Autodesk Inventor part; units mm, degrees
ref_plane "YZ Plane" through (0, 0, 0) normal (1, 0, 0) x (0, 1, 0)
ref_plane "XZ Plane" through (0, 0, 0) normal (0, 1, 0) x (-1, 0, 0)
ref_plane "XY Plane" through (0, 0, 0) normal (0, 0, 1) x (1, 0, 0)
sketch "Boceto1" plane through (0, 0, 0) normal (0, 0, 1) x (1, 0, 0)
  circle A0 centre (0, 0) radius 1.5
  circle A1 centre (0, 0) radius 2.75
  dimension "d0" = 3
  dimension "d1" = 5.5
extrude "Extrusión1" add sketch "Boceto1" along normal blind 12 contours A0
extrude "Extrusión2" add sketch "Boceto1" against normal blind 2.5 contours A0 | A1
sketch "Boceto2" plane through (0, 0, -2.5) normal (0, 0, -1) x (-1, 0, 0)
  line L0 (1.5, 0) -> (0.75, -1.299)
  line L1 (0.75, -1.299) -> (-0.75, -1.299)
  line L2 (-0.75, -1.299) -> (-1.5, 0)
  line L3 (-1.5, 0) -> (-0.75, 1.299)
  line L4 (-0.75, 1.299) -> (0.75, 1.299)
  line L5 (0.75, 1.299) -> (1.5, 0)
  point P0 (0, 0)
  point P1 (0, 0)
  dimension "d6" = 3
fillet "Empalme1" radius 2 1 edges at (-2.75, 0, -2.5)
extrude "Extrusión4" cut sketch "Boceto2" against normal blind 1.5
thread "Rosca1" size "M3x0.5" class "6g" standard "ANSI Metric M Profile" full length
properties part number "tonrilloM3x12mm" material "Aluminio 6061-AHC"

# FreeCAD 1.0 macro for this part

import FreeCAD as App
import Part
import Sketcher

V = App.Vector
Q = App.Units.Quantity


def edges_at(feature, points):
    """Names of the edges that pass closest to the given points."""
    edges = feature.Shape.Edges
    near = lambda p: min(range(len(edges)), key=lambda i: edges[i].distToShape(Part.Vertex(*p))[0])
    return sorted({f"Edge{near(p) + 1}" for p in points})


def add_polygon(sketch, points):
    """Adds a closed chain of lines whose ends are joined by coincident constraints."""
    first, n = sketch.GeometryCount, len(points)
    for a, b in zip(points, points[1:] + points[:1]):
        sketch.addGeometry(Part.LineSegment(App.Vector(*a, 0), App.Vector(*b, 0)), False)
    for i in range(n):
        sketch.addConstraint(Sketcher.Constraint("Coincident", first + i, 2, first + (i + 1) % n, 1))

doc = App.newDocument("Part")
body = doc.addObject("PartDesign::Body", "Body")

sketch1 = body.newObject("Sketcher::SketchObject", "Sketch")
sketch1.AttachmentSupport = (doc.getObject("XY_Plane"), [""])
sketch1.MapMode = "FlatFace"
sketch1.addGeometry(Part.Circle(V(0, 0, 0), V(0, 0, 1), 1.5), False)
sketch1.addConstraint([
    Sketcher.Constraint("Coincident", 0, 3, -1, 1),
    Sketcher.Constraint("Diameter", 0, Q("3 mm")),
])
pad1 = body.newObject("PartDesign::Pad", "Pad")
pad1.Profile = sketch1
pad1.Length = 12

sketch2 = body.newObject("Sketcher::SketchObject", "Sketch001")
sketch2.AttachmentSupport = (doc.getObject("XY_Plane"), [""])
sketch2.MapMode = "FlatFace"
sketch2.addGeometry(Part.Circle(V(0, 0, 0), V(0, 0, 1), 2.75), False)
sketch2.addConstraint([
    Sketcher.Constraint("Coincident", 0, 3, -1, 1),
    Sketcher.Constraint("Diameter", 0, Q("5.5 mm")),
])
pad2 = body.newObject("PartDesign::Pad", "Pad001")
pad2.Profile = sketch2
pad2.Length = 2.5
pad2.Reversed = True
doc.recompute()

fillet = body.newObject("PartDesign::Fillet", "Fillet")
fillet.Base = (pad2, edges_at(pad2, [(-2.75, 0, -2.5)]))
fillet.Radius = 2

sketch3 = body.newObject("Sketcher::SketchObject", "Sketch002")
sketch3.AttachmentSupport = (doc.getObject("XY_Plane"), [""])
sketch3.MapMode = "FlatFace"
sketch3.AttachmentOffset = App.Placement(V(0, 0, -2.5), App.Rotation())
add_polygon(sketch3, [(-0.75, -1.299), (-1.5, 0), (-0.75, 1.299), (0.75, 1.299), (1.5, 0), (0.75, -1.299)])
sketch3.addConstraint([
    Sketcher.Constraint("Horizontal", 2),
    Sketcher.Constraint("Horizontal", 5),
    Sketcher.Constraint("Symmetric", 0, 2, 3, 2, -1, 1),
    Sketcher.Constraint("Symmetric", 1, 2, 4, 2, -1, 1),
    Sketcher.Constraint("PointOnObject", 0, 2, -1),
    Sketcher.Constraint("Parallel", 0, 3),
    Sketcher.Constraint("Vertical", 2, 2, 4, 2),
    Sketcher.Constraint("DistanceX", 0, 2, 3, 2, Q("3 mm")),
    Sketcher.Constraint("Angle", 0, Q("120.0007 deg")),
    Sketcher.Constraint("DistanceX", 2, 1, 2, 2, Q("1.5 mm")),
])
pocket1 = body.newObject("PartDesign::Pocket", "Pocket")
pocket1.Profile = sketch3
pocket1.Length = 1.5
pocket1.Reversed = True

doc.recompute()
